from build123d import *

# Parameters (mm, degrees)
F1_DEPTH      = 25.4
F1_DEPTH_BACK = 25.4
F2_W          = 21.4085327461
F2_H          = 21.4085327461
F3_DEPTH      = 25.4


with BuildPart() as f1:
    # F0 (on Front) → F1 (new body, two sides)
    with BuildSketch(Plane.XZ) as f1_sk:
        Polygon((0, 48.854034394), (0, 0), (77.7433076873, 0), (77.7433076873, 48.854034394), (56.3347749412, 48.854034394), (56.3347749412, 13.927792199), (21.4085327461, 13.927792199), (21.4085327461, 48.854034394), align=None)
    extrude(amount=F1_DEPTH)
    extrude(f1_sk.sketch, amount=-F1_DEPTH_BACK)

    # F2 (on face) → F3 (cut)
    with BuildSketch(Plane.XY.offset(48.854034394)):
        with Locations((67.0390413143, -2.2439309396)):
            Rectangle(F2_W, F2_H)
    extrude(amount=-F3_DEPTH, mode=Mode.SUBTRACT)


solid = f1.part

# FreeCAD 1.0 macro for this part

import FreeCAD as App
import Part
import Sketcher
Q = App.Units.Quantity

doc = App.newDocument("Part")
body = doc.addObject("PartDesign::Body", "Body")

sketch1 = doc.addObject("Sketcher::SketchObject", "Sketch")
body.addObject(sketch1)
sketch1.AttachmentSupport = (doc.XZ_Plane, [""])
sketch1.MapMode = "FlatFace"
sketch1.addGeometry([
    Part.LineSegment(App.Vector(0, 49, 0), App.Vector(0, 0, 0)),
    Part.LineSegment(App.Vector(0, 0, 0), App.Vector(78, 0, 0)),
    Part.LineSegment(App.Vector(78, 0, 0), App.Vector(78, 49, 0)),
    Part.LineSegment(App.Vector(78, 49, 0), App.Vector(56, 49, 0)),
    Part.LineSegment(App.Vector(56, 49, 0), App.Vector(56, 14, 0)),
    Part.LineSegment(App.Vector(56, 14, 0), App.Vector(21, 14, 0)),
    Part.LineSegment(App.Vector(21, 14, 0), App.Vector(21, 49, 0)),
    Part.LineSegment(App.Vector(21, 49, 0), App.Vector(0, 49, 0)),
], False)
sketch1.addConstraint([
    Sketcher.Constraint("Coincident", 0, 2, 1, 1),
    Sketcher.Constraint("Coincident", 1, 2, 2, 1),
    Sketcher.Constraint("Coincident", 2, 2, 3, 1),
    Sketcher.Constraint("Coincident", 3, 2, 4, 1),
    Sketcher.Constraint("Coincident", 4, 2, 5, 1),
    Sketcher.Constraint("Coincident", 5, 2, 6, 1),
    Sketcher.Constraint("Coincident", 6, 2, 7, 1),
    Sketcher.Constraint("Coincident", 7, 2, 0, 1),
    Sketcher.Constraint("Vertical", 0),
    Sketcher.Constraint("Horizontal", 1),
    Sketcher.Constraint("Vertical", 2),
    Sketcher.Constraint("Horizontal", 3),
    Sketcher.Constraint("Vertical", 4),
    Sketcher.Constraint("Horizontal", 5),
    Sketcher.Constraint("Vertical", 6),
    Sketcher.Constraint("Horizontal", 7),
    Sketcher.Constraint("Coincident", 0, 2, -1, 1),
    Sketcher.Constraint("Horizontal", 3, 2, 6, 2),
    Sketcher.Constraint("Equal", 3, 7),
    Sketcher.Constraint("Equal", 5, 4),
    Sketcher.Constraint("DistanceX", 1, 1, 1, 2, Q("77.743308 mm")),
    Sketcher.Constraint("DistanceX", 3, 2, 3, 1, Q("21.408533 mm")),
    Sketcher.Constraint("DistanceY", 0, 2, 0, 1, Q("48.854034 mm")),
])
pad1 = doc.addObject("PartDesign::Pad", "Pad")
body.addObject(pad1)
pad1.Profile = sketch1
pad1.Type = "TwoLengths"
pad1.Length = Q("1 in")
pad1.Length2 = Q("1 in")

sketch2 = doc.addObject("Sketcher::SketchObject", "Sketch001")
body.addObject(sketch2)
sketch2.AttachmentSupport = (doc.XY_Plane, [""])
sketch2.MapMode = "FlatFace"
sketch2.AttachmentOffset = App.Placement(App.Vector(0, 0, 48.854034), App.Rotation())
sketch2.addGeometry([
    Part.LineSegment(App.Vector(56, 8, 0), App.Vector(56, -13, 0)),
    Part.LineSegment(App.Vector(56, -13, 0), App.Vector(78, -13, 0)),
    Part.LineSegment(App.Vector(78, -13, 0), App.Vector(78, 8, 0)),
    Part.LineSegment(App.Vector(78, 8, 0), App.Vector(56, 8, 0)),
], False)
sketch2.addConstraint([
    Sketcher.Constraint("Coincident", 0, 2, 1, 1),
    Sketcher.Constraint("Coincident", 1, 2, 2, 1),
    Sketcher.Constraint("Coincident", 2, 2, 3, 1),
    Sketcher.Constraint("Coincident", 3, 2, 0, 1),
    Sketcher.Constraint("Vertical", 0),
    Sketcher.Constraint("Horizontal", 1),
    Sketcher.Constraint("Vertical", 2),
    Sketcher.Constraint("Horizontal", 3),
    Sketcher.Constraint("Equal", 3, 0),
    Sketcher.Constraint("DistanceX", 1, 1, 1, 2, Q("21.408533 mm")),
    Sketcher.Constraint("DistanceX", -1, 1, 0, 2, Q("56.334775 mm")),
    Sketcher.Constraint("DistanceY", 0, 2, -1, 1, Q("12.948197 mm")),
])
pocket1 = doc.addObject("PartDesign::Pocket", "Pocket")
body.addObject(pocket1)
pocket1.Profile = sketch2
pocket1.Length = Q("1 in")

doc.recompute()
